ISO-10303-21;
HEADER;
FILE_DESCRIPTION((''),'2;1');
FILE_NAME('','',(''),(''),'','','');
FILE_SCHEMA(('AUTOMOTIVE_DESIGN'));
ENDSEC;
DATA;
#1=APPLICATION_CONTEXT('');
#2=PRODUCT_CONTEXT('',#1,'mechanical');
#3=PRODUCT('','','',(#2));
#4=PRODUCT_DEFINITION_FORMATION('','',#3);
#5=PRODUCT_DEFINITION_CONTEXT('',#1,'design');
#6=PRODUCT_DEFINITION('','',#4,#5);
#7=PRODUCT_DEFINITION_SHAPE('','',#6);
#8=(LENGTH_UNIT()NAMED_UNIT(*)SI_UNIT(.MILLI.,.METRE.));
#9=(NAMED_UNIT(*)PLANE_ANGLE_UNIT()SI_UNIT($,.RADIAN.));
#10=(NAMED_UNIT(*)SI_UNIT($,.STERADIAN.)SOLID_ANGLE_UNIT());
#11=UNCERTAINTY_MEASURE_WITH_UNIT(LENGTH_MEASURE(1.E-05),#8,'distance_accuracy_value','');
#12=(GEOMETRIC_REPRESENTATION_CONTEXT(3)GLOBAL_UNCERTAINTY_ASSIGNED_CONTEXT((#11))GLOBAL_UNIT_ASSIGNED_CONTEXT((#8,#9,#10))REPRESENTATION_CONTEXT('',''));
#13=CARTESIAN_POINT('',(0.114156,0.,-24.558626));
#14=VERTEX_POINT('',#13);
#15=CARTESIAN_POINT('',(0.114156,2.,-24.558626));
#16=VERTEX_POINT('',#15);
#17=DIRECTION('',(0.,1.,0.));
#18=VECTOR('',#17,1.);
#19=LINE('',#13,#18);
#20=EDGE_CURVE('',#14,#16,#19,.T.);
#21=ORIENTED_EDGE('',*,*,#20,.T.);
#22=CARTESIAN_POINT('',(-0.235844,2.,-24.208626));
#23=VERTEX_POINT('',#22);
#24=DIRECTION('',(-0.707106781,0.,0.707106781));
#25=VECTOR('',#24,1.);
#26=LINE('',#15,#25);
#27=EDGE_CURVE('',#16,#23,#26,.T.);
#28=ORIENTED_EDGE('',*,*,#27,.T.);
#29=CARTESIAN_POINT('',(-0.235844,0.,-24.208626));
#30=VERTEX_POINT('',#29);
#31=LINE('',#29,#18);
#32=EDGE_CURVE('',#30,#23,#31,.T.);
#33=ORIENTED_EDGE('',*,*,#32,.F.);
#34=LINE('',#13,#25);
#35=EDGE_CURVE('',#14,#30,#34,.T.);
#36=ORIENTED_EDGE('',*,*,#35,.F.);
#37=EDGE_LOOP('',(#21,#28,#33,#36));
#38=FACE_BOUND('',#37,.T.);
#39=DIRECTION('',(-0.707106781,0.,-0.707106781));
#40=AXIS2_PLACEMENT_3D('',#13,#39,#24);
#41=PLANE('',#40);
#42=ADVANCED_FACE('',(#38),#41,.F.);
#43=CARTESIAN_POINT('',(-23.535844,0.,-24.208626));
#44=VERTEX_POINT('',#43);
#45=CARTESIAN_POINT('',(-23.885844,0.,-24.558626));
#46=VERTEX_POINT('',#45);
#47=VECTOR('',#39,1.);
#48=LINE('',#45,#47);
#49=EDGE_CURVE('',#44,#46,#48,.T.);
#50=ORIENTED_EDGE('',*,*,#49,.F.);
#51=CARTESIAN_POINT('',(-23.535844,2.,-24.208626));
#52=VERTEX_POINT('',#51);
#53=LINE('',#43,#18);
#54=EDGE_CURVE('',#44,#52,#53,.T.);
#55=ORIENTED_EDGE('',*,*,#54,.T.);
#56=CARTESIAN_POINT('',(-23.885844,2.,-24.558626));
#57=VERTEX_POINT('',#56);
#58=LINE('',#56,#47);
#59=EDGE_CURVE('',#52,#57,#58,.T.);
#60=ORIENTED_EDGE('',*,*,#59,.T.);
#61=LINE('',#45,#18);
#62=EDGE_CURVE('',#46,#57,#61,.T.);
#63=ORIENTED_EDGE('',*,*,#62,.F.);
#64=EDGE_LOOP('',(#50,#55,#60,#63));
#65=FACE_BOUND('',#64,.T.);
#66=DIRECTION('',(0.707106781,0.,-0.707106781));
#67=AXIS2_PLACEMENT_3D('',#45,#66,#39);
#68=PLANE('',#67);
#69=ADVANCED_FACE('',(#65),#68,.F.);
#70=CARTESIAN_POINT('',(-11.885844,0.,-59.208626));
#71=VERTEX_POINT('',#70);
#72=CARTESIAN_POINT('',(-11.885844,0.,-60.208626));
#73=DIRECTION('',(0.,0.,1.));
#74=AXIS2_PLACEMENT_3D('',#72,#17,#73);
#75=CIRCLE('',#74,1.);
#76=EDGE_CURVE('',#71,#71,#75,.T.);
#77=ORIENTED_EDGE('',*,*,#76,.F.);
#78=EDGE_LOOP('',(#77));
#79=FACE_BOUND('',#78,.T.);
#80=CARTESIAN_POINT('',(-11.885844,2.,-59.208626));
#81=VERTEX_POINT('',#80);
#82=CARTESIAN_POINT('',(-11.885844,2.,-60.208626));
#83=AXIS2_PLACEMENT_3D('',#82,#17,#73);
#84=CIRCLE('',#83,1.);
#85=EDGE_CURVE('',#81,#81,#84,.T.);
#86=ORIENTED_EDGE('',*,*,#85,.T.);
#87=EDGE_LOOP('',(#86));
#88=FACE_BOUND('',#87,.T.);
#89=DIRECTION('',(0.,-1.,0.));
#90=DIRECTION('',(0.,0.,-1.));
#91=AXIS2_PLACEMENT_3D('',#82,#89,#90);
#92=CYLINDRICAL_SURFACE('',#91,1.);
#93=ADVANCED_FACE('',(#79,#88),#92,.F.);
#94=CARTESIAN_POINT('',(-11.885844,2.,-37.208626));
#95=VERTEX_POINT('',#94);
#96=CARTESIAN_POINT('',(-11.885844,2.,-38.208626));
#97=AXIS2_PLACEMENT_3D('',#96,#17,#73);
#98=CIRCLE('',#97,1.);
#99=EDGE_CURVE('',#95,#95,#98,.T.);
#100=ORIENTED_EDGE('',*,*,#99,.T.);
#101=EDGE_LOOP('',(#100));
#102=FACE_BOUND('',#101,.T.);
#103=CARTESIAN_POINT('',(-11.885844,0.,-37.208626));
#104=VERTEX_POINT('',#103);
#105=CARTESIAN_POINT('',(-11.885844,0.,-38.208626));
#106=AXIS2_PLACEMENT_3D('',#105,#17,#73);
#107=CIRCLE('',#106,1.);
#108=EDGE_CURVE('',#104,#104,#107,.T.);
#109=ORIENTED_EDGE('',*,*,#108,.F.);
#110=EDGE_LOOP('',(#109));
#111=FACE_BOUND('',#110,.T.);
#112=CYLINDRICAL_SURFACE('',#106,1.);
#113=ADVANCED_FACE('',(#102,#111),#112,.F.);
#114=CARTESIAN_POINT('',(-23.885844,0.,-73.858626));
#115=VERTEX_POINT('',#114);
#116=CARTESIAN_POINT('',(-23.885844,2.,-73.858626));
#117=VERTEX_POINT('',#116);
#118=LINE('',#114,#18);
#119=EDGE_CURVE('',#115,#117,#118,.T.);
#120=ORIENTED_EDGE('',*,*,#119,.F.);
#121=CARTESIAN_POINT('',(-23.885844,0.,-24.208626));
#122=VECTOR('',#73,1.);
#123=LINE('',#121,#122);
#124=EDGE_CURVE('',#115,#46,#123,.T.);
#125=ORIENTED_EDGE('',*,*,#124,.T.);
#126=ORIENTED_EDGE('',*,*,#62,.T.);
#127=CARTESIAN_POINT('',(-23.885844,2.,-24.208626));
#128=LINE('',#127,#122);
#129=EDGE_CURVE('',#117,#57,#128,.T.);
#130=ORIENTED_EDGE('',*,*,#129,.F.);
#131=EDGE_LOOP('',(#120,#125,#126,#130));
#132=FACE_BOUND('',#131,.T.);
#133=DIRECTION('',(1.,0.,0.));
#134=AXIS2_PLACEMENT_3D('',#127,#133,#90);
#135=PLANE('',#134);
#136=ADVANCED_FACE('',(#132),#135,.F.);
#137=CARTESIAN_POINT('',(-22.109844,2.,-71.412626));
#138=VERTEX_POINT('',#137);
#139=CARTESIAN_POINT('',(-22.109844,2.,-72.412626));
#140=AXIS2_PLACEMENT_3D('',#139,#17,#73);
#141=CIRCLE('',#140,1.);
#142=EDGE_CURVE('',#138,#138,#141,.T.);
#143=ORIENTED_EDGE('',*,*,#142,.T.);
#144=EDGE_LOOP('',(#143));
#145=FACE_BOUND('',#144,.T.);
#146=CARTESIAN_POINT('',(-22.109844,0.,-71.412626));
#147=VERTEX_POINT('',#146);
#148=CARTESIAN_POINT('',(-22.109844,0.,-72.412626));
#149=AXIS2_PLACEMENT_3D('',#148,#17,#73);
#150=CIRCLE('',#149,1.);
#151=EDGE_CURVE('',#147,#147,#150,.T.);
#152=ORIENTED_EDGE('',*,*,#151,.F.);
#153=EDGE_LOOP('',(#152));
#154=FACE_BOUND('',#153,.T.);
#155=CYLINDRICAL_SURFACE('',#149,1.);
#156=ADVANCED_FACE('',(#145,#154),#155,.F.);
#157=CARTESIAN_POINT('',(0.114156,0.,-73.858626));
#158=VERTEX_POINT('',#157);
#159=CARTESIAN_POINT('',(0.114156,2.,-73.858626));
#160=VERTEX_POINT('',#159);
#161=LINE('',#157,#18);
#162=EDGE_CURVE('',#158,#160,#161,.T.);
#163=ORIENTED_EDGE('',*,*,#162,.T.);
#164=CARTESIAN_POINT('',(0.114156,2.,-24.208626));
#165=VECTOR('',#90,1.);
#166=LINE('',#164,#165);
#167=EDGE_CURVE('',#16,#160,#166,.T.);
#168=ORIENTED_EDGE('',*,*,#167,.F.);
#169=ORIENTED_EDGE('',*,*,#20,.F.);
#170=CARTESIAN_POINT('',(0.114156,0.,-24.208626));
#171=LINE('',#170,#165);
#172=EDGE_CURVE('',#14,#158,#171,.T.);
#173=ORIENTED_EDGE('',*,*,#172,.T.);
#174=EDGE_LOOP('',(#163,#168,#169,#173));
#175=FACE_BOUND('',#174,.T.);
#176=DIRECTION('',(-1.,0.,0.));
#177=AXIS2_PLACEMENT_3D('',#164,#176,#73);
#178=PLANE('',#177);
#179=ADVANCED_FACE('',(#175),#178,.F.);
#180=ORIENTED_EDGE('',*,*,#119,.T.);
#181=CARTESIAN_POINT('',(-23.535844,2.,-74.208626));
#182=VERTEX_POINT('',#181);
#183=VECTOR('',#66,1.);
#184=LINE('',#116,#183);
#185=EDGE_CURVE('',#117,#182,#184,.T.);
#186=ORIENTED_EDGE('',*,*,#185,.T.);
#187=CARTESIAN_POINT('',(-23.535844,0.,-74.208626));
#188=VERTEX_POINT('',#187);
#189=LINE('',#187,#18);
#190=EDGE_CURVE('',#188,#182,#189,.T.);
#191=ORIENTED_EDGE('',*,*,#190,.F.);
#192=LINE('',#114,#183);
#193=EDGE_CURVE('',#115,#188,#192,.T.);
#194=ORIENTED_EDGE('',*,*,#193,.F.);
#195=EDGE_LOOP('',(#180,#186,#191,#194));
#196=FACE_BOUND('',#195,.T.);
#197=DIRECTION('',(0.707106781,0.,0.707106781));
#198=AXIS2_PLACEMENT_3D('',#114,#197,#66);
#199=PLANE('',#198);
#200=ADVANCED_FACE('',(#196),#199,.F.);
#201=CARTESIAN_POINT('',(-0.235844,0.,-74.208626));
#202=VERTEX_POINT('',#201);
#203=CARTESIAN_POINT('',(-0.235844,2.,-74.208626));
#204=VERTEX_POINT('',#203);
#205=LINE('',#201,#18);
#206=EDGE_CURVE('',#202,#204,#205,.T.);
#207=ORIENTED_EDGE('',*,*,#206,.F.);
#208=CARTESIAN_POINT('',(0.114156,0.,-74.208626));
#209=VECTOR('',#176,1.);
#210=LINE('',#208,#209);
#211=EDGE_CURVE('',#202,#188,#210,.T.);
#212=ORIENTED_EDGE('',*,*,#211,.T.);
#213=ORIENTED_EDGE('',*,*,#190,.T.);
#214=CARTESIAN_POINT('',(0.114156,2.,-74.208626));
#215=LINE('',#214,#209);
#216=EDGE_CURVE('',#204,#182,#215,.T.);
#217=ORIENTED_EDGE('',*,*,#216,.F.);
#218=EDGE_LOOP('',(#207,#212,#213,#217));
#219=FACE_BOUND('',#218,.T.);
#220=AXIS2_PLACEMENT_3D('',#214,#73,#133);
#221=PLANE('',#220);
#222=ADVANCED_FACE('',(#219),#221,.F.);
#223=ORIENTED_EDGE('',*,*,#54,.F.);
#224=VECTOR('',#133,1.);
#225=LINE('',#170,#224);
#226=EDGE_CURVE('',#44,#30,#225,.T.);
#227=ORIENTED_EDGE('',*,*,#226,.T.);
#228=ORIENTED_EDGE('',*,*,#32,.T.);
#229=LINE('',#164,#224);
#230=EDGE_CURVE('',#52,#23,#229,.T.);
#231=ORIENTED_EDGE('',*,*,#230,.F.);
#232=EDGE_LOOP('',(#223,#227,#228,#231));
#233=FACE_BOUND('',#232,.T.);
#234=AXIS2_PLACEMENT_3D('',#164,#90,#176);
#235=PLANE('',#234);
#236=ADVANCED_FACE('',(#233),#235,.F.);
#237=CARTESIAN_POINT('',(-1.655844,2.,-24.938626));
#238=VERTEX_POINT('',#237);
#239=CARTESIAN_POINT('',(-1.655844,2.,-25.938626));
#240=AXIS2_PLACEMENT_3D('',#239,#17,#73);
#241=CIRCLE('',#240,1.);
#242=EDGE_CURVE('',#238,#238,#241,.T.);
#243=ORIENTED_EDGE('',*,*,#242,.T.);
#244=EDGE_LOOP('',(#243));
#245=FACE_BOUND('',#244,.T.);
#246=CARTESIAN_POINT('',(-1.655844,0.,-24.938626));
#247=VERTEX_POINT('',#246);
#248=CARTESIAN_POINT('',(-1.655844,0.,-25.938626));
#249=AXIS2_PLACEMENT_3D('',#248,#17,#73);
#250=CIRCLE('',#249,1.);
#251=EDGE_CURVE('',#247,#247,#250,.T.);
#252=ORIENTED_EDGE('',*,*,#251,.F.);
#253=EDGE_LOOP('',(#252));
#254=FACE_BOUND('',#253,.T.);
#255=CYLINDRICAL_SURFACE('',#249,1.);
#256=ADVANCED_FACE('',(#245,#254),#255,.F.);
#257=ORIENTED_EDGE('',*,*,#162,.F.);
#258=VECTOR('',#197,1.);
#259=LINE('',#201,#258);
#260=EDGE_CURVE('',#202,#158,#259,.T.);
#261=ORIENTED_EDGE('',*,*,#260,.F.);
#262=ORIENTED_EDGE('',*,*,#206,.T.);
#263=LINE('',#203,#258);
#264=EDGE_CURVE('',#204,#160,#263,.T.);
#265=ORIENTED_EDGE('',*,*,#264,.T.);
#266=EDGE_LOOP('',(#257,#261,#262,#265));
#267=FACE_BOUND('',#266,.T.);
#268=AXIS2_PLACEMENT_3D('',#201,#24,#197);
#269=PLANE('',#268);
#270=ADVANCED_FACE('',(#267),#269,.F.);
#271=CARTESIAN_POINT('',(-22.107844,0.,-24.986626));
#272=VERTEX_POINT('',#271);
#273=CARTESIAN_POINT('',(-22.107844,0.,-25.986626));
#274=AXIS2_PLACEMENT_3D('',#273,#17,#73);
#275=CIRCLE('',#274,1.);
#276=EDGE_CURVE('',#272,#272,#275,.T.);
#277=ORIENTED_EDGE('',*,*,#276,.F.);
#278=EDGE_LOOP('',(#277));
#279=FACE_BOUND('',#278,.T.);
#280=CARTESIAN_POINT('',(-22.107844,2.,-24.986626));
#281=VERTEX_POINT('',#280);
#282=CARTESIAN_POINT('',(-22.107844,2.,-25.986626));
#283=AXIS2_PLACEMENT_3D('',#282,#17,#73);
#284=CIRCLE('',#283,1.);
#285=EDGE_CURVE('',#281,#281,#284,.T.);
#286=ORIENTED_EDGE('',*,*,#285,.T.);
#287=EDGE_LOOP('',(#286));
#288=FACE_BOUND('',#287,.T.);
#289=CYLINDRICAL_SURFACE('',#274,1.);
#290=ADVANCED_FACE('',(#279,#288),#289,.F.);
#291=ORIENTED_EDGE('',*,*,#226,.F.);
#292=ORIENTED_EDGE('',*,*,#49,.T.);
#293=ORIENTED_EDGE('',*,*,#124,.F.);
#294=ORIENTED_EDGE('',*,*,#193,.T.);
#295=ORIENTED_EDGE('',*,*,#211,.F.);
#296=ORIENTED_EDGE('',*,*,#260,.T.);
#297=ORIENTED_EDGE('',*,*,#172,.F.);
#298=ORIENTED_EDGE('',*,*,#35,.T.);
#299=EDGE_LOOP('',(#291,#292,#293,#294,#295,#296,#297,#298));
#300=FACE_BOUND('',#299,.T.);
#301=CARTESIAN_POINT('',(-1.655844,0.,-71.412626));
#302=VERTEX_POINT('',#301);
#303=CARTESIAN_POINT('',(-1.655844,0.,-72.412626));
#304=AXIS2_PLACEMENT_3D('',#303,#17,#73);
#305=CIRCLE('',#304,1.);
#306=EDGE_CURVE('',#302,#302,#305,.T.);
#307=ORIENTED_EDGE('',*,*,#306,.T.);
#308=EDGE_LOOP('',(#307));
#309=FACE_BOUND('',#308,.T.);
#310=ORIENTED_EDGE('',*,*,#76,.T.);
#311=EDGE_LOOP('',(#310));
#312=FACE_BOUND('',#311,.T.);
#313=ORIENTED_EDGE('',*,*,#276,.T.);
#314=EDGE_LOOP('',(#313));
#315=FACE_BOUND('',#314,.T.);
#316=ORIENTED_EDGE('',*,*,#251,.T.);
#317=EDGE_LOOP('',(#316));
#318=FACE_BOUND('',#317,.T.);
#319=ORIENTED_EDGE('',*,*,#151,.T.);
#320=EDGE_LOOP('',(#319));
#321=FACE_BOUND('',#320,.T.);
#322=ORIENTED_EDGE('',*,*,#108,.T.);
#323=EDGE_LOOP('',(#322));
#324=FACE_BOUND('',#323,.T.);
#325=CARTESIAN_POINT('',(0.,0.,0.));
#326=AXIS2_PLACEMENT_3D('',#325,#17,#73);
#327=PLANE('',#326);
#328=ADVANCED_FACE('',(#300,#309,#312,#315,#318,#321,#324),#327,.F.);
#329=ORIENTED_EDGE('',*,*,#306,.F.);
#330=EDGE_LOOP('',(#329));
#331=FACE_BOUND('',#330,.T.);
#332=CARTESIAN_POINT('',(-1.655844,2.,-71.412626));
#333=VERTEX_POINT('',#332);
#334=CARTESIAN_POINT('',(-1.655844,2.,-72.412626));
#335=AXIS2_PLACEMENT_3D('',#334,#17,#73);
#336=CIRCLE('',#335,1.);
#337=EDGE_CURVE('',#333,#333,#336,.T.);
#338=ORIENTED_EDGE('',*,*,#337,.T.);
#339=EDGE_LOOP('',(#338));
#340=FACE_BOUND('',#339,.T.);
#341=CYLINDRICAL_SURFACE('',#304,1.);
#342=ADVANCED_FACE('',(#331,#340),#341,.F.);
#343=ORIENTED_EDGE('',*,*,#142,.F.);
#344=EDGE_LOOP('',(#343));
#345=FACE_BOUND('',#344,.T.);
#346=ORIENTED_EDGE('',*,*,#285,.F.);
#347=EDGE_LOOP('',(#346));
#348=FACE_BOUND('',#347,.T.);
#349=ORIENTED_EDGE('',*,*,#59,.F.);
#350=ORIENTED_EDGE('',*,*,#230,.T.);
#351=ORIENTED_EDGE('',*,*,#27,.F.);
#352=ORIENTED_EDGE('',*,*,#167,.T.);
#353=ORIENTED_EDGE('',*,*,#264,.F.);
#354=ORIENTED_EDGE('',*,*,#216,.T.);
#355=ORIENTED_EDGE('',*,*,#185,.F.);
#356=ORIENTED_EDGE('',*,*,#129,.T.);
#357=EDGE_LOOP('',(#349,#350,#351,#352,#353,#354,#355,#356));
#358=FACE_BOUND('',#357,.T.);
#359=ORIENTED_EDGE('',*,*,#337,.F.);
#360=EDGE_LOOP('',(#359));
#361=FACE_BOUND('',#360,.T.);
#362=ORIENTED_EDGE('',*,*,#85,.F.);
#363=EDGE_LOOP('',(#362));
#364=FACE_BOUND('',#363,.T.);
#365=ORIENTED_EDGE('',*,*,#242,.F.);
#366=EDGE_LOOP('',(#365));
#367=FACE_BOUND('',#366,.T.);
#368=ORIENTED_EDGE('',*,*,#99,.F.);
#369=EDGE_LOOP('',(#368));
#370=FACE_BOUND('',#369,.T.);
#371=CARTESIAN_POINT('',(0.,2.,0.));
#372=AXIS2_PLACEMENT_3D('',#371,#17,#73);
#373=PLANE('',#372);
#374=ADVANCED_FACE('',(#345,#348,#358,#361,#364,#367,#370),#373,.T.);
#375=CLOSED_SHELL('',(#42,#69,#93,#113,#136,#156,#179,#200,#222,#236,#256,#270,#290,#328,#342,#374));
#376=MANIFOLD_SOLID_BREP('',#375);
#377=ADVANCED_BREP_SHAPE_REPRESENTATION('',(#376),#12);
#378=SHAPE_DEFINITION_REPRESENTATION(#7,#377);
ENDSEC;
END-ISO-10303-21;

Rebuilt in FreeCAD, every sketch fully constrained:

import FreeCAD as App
import Part
import Sketcher

V = App.Vector


def add_polygon(sketch, points):
    """Adds a closed chain of lines whose ends are joined by coincident constraints."""
    first, n = sketch.GeometryCount, len(points)
    for a, b in zip(points, points[1:] + points[:1]):
        sketch.addGeometry(Part.LineSegment(App.Vector(*a, 0), App.Vector(*b, 0)), False)
    for i in range(n):
        sketch.addConstraint(Sketcher.Constraint("Coincident", first + i, 2, first + (i + 1) % n, 1))

doc = App.newDocument("Part")
params = doc.addObject("Spreadsheet::Sheet", "Params")
for row, (alias, value) in enumerate([
    ("sketch1_diameter", "2 mm"),
    ("sketch1_width", "24 mm"),
    ("sketch1_height", "50 mm"),
    ("pad1_length", "2 mm"),
    ("sketch2_diameter", "2 mm"),
    ("pocket1_length", "2 mm"),
    ("sketch3_width", "0.35 mm"),
    ("pocket2_length", "2 mm"),
], start=1):
    params.set(f"A{row}", alias)
    params.set(f"B{row}", "=" + value)
    params.setAlias(f"B{row}", alias)

body = doc.addObject("PartDesign::Body", "Body")

# Sketch on XZ plane
sketch1 = body.newObject("Sketcher::SketchObject", "Sketch")
sketch1.AttachmentSupport = (doc.getObject("XZ_Plane"), [""])
sketch1.MapMode = "FlatFace"
add_polygon(sketch1, [(-23.9, -74.2), (-23.9, -24.2), (0.1, -24.2), (0.1, -74.2)])  # lines 0-3
sketch1.addGeometry(Part.Circle(V(-11.9, -60.2, 0), V(0, 0, 1), 1), False)  # 4
sketch1.addConstraint([
    Sketcher.Constraint("Vertical", 0),
    Sketcher.Constraint("Horizontal", 1),
    Sketcher.Constraint("Vertical", 2),
    Sketcher.Constraint("Horizontal", 3),
    Sketcher.Constraint("Diameter", 4, 2.0),
    Sketcher.Constraint("DistanceX", 1, 1, 1, 2, 24.0),
    Sketcher.Constraint("DistanceY", 0, 1, 0, 2, 50.0),
    Sketcher.Constraint("DistanceX", 0, 2, 4, 3, 12.0),
    Sketcher.Constraint("DistanceY", 4, 3, 0, 2, 36.0),
    Sketcher.Constraint("DistanceX", 4, 3, -1, 1, 11.885844),
    Sketcher.Constraint("DistanceY", 4, 3, -1, 1, 60.208626),
])
sketch1.setExpression("Constraints[8]", "Params.sketch1_diameter")
sketch1.setExpression("Constraints[9]", "Params.sketch1_width")
sketch1.setExpression("Constraints[10]", "Params.sketch1_height")
pad1 = body.newObject("PartDesign::Pad", "Pad")
pad1.Profile = sketch1
pad1.setExpression("Length", "Params.pad1_length")
pad1.Reversed = True

# Sketch on XZ plane
sketch2 = body.newObject("Sketcher::SketchObject", "Sketch001")
sketch2.AttachmentSupport = (doc.getObject("XZ_Plane"), [""])
sketch2.MapMode = "FlatFace"
sketch2.AttachmentOffset = App.Placement(V(0, 0, -2), App.Rotation())
sketch2.addGeometry([
    Part.Circle(V(-11.9, -38.2, 0), V(0, 0, 1), 1),  # 0
    Part.Circle(V(-22.1, -72.4, 0), V(0, 0, 1), 1),  # 1
    Part.Circle(V(-1.7, -72.4, 0), V(0, 0, 1), 1),  # 2
    Part.Circle(V(-22.1, -26, 0), V(0, 0, 1), 1),  # 3
    Part.Circle(V(-1.7, -25.9, 0), V(0, 0, 1), 1),  # 4
], False)
sketch2.addConstraint([
    Sketcher.Constraint("Equal", 0, 1),
    Sketcher.Constraint("Equal", 1, 2),
    Sketcher.Constraint("Equal", 2, 3),
    Sketcher.Constraint("Equal", 3, 4),
    Sketcher.Constraint("Horizontal", 1, 3, 2, 3),
    Sketcher.Constraint("Vertical", 2, 3, 4, 3),
    Sketcher.Constraint("Diameter", 0, 2.0),
    Sketcher.Constraint("DistanceX", 0, 3, 2, 3, 10.23),
    Sketcher.Constraint("DistanceY", 0, 3, 4, 3, 12.27),
    Sketcher.Constraint("DistanceX", 1, 3, 0, 3, 10.224),
    Sketcher.Constraint("DistanceY", 1, 3, 0, 3, 34.204),
    Sketcher.Constraint("DistanceX", 3, 3, 0, 3, 10.222),
    Sketcher.Constraint("DistanceY", 0, 3, 3, 3, 12.222),
    Sketcher.Constraint("DistanceX", 0, 3, -1, 1, 11.885844),
    Sketcher.Constraint("DistanceY", 0, 3, -1, 1, 38.208626),
])
sketch2.setExpression("Constraints[6]", "Params.sketch2_diameter")
pocket1 = body.newObject("PartDesign::Pocket", "Pocket")
pocket1.Profile = sketch2
pocket1.setExpression("Length", "Params.pocket1_length")
pocket1.Reversed = True

# Sketch on XZ plane
sketch3 = body.newObject("Sketcher::SketchObject", "Sketch002")
sketch3.AttachmentSupport = (doc.getObject("XZ_Plane"), [""])
sketch3.MapMode = "FlatFace"
sketch3.AttachmentOffset = App.Placement(V(0, 0, -2), App.Rotation())
add_polygon(sketch3, [(-23.54, -74.21), (-23.89, -74.21), (-23.89, -73.86)])  # lines 0-2
add_polygon(sketch3, [(0.11, -73.86), (0.11, -74.21), (-0.24, -74.21)])  # lines 3-5
add_polygon(sketch3, [(-0.24, -24.21), (0.11, -24.21), (0.11, -24.56)])  # lines 6-8
add_polygon(sketch3, [(-23.89, -24.21), (-23.54, -24.21), (-23.89, -24.56)])  # lines 9-11
sketch3.addConstraint([
    Sketcher.Constraint("Horizontal", 0),
    Sketcher.Constraint("Vertical", 1),
    Sketcher.Constraint("Vertical", 3),
    Sketcher.Constraint("Horizontal", 4),
    Sketcher.Constraint("Horizontal", 6),
    Sketcher.Constraint("Vertical", 7),
    Sketcher.Constraint("Horizontal", 9),
    Sketcher.Constraint("Vertical", 11),
    Sketcher.Constraint("Perpendicular", 2, 5),
    Sketcher.Constraint("Perpendicular", 5, 8),
    Sketcher.Constraint("Perpendicular", 8, 10),
    Sketcher.Constraint("Horizontal", 2, 2, 3, 2),
    Sketcher.Constraint("Horizontal", 1, 2, 5, 2),
    Sketcher.Constraint("Horizontal", 8, 2, 9, 2),
    Sketcher.Constraint("Horizontal", 7, 2, 10, 2),
    Sketcher.Constraint("Vertical", 5, 2, 6, 2),
    Sketcher.Constraint("Vertical", 4, 2, 8, 2),
    Sketcher.Constraint("Vertical", 2, 2, 9, 2),
    Sketcher.Constraint("Vertical", 1, 2, 10, 2),
    Sketcher.Constraint("DistanceX", 0, 2, 3, 2, 24.0),
    Sketcher.Constraint("DistanceY", 3, 2, 6, 2, 50.0),
    Sketcher.Constraint("DistanceX", 0, 2, 0, 1, 0.35),
    Sketcher.Constraint("DistanceX", 0, 2, -1, 1, 23.885844),
    Sketcher.Constraint("DistanceY", 0, 2, -1, 1, 74.208626),
])
sketch3.setExpression("Constraints[33]", "Params.sketch3_width")
pocket2 = body.newObject("PartDesign::Pocket", "Pocket001")
pocket2.Profile = sketch3
pocket2.setExpression("Length", "Params.pocket2_length")
pocket2.Reversed = True

doc.recompute()
